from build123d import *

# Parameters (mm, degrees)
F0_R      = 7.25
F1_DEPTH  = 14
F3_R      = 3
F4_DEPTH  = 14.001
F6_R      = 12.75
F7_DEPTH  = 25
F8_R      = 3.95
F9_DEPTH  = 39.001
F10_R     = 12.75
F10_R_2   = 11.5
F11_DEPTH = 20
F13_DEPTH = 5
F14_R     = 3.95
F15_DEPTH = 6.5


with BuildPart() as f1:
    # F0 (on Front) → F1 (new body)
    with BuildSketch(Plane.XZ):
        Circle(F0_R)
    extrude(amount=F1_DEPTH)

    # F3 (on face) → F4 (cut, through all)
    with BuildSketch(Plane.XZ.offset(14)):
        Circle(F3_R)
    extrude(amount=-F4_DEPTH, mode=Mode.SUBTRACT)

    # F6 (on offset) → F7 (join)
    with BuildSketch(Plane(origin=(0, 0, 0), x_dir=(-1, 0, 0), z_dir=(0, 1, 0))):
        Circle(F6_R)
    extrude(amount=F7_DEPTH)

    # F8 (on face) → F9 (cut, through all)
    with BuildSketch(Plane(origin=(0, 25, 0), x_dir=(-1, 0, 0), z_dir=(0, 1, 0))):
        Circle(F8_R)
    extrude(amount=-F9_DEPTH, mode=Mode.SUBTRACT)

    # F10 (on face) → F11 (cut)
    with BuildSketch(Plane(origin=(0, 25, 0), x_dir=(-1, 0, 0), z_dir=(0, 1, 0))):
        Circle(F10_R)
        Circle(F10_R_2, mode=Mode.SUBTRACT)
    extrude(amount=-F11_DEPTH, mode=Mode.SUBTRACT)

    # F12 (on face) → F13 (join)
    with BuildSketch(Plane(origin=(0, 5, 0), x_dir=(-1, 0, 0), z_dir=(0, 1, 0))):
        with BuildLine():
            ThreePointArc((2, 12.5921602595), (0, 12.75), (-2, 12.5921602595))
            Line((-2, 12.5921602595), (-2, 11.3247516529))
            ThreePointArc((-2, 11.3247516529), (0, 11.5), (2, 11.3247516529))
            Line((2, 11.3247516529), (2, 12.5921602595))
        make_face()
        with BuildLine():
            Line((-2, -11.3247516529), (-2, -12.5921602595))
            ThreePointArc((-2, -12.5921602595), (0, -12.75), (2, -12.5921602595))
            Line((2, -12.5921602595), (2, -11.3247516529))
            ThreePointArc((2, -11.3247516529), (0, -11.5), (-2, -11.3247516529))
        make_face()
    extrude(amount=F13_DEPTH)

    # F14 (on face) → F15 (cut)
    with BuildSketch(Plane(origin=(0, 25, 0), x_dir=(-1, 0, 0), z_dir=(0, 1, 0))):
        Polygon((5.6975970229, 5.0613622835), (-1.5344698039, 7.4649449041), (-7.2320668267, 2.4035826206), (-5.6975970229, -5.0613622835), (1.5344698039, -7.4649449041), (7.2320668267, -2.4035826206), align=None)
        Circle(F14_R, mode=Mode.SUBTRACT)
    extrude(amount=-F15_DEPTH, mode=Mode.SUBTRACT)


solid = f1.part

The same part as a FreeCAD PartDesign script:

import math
import FreeCAD as App
import Part
import Sketcher

V = App.Vector


def add_polygon(sketch, points):
    """Adds a closed chain of lines whose ends are joined by coincident constraints."""
    first, n = sketch.GeometryCount, len(points)
    for a, b in zip(points, points[1:] + points[:1]):
        sketch.addGeometry(Part.LineSegment(App.Vector(*a, 0), App.Vector(*b, 0)), False)
    for i in range(n):
        sketch.addConstraint(Sketcher.Constraint("Coincident", first + i, 2, first + (i + 1) % n, 1))

doc = App.newDocument("Part")
body = doc.addObject("PartDesign::Body", "Body")

# Sketch on XZ plane
sketch1 = body.newObject("Sketcher::SketchObject", "Sketch")
sketch1.AttachmentSupport = (doc.getObject("XZ_Plane"), [""])
sketch1.MapMode = "FlatFace"
sketch1.addGeometry(Part.Circle(V(0, 0, 0), V(0, 0, 1), 7), False)
sketch1.addConstraint([
    Sketcher.Constraint("Coincident", 0, 3, -1, 1),
    Sketcher.Constraint("Diameter", 0, 14.5),
])
pad1 = body.newObject("PartDesign::Pad", "Pad")
pad1.Profile = sketch1
pad1.Length = 14

# Sketch on XZ plane
sketch2 = body.newObject("Sketcher::SketchObject", "Sketch001")
sketch2.AttachmentSupport = (doc.getObject("XZ_Plane"), [""])
sketch2.MapMode = "FlatFace"
sketch2.AttachmentOffset = App.Placement(V(0, 0, 14), App.Rotation())
sketch2.addGeometry(Part.Circle(V(0, 0, 0), V(0, 0, 1), 3), False)
sketch2.addConstraint([
    Sketcher.Constraint("Coincident", 0, 3, -1, 1),
    Sketcher.Constraint("Diameter", 0, 6.0),
])
pocket1 = body.newObject("PartDesign::Pocket", "Pocket")
pocket1.Profile = sketch2
pocket1.Type = "ThroughAll"

# Sketch on XZ plane
sketch3 = body.newObject("Sketcher::SketchObject", "Sketch002")
sketch3.AttachmentSupport = (doc.getObject("XZ_Plane"), [""])
sketch3.MapMode = "FlatFace"
sketch3.addGeometry(Part.Circle(V(0, 0, 0), V(0, 0, 1), 13), False)
sketch3.addConstraint([
    Sketcher.Constraint("Coincident", 0, 3, -1, 1),
    Sketcher.Constraint("Diameter", 0, 25.5),
])
pad2 = body.newObject("PartDesign::Pad", "Pad001")
pad2.Profile = sketch3
pad2.Length = 25
pad2.Reversed = True

# Sketch on XZ plane
sketch4 = body.newObject("Sketcher::SketchObject", "Sketch003")
sketch4.AttachmentSupport = (doc.getObject("XZ_Plane"), [""])
sketch4.MapMode = "FlatFace"
sketch4.AttachmentOffset = App.Placement(V(0, 0, -25), App.Rotation())
sketch4.addGeometry(Part.Circle(V(0, 0, 0), V(0, 0, 1), 4), False)
sketch4.addConstraint([
    Sketcher.Constraint("Coincident", 0, 3, -1, 1),
    Sketcher.Constraint("Diameter", 0, 7.9),
])
pocket2 = body.newObject("PartDesign::Pocket", "Pocket001")
pocket2.Profile = sketch4
pocket2.Type = "ThroughAll"
pocket2.Reversed = True

# Sketch on XZ plane
sketch5 = body.newObject("Sketcher::SketchObject", "Sketch004")
sketch5.AttachmentSupport = (doc.getObject("XZ_Plane"), [""])
sketch5.MapMode = "FlatFace"
sketch5.AttachmentOffset = App.Placement(V(0, 0, -25), App.Rotation())
sketch5.addGeometry([
    Part.Circle(V(0, 0, 0), V(0, 0, 1), 13),
    Part.Circle(V(0, 0, 0), V(0, 0, 1), 12),
], False)
sketch5.addConstraint([
    Sketcher.Constraint("Coincident", 0, 3, -1, 1),
    Sketcher.Constraint("Coincident", 1, 3, -1, 1),
    Sketcher.Constraint("Diameter", 1, 23.0),
    Sketcher.Constraint("Diameter", 0, 25.5),
])
pocket3 = body.newObject("PartDesign::Pocket", "Pocket002")
pocket3.Profile = sketch5
pocket3.Length = 20
pocket3.Reversed = True

# Sketch on XZ plane
sketch6 = body.newObject("Sketcher::SketchObject", "Sketch005")
sketch6.AttachmentSupport = (doc.getObject("XZ_Plane"), [""])
sketch6.MapMode = "FlatFace"
sketch6.AttachmentOffset = App.Placement(V(0, 0, -5), App.Rotation())
sketch6.addGeometry([
    Part.ArcOfCircle(Part.Circle(V(0, 0, 0), V(0, 0, 1), 12.8), math.radians(80.98), math.radians(99.02)),  # 0
    Part.LineSegment(V(2, 12.6, 0), V(2, 11.3, 0)),  # 1
    Part.ArcOfCircle(Part.Circle(V(0, 0, 0), V(0, 0, 1), 11.5), math.radians(80), math.radians(100)),  # 2
    Part.LineSegment(V(-2, 11.3, 0), V(-2, 12.6, 0)),  # 3
    Part.LineSegment(V(2, -11.3, 0), V(2, -12.6, 0)),  # 4
    Part.ArcOfCircle(Part.Circle(V(0, 0, 0), V(0, 0, 1), 12.8), math.radians(-99.02), math.radians(-80.98)),  # 5
    Part.LineSegment(V(-2, -12.6, 0), V(-2, -11.3, 0)),  # 6
    Part.ArcOfCircle(Part.Circle(V(0, 0, 0), V(0, 0, 1), 11.5), math.radians(-100), math.radians(-80)),  # 7
], False)
sketch6.addConstraint([
    Sketcher.Constraint("Coincident", 0, 1, 1, 1),
    Sketcher.Constraint("Coincident", 1, 2, 2, 1),
    Sketcher.Constraint("Coincident", 2, 2, 3, 1),
    Sketcher.Constraint("Coincident", 3, 2, 0, 2),
    Sketcher.Constraint("Coincident", 4, 2, 5, 2),
    Sketcher.Constraint("Coincident", 5, 1, 6, 1),
    Sketcher.Constraint("Coincident", 6, 2, 7, 1),
    Sketcher.Constraint("Coincident", 7, 2, 4, 1),
    Sketcher.Constraint("Vertical", 1),
    Sketcher.Constraint("Vertical", 3),
    Sketcher.Constraint("Vertical", 4),
    Sketcher.Constraint("Vertical", 6),
    Sketcher.Constraint("Coincident", 0, 3, -1, 1),
    Sketcher.Constraint("Coincident", 2, 3, -1, 1),
    Sketcher.Constraint("Coincident", 5, 3, -1, 1),
    Sketcher.Constraint("Coincident", 7, 3, -1, 1),
    Sketcher.Constraint("Equal", 0, 5),
    Sketcher.Constraint("Equal", 2, 7),
    Sketcher.Constraint("Horizontal", 1, 2, 2, 2),
    Sketcher.Constraint("Horizontal", 4, 2, 5, 1),
    Sketcher.Constraint("Vertical", 1, 2, 4, 2),
    Sketcher.Constraint("Radius", 2, 11.5),
    Sketcher.Constraint("Radius", 0, 12.75),
    Sketcher.Constraint("DistanceX", -1, 1, 0, 1, 2.0),
])
pad3 = body.newObject("PartDesign::Pad", "Pad002")
pad3.Profile = sketch6
pad3.Length = 5
pad3.Reversed = True

# Sketch on XZ plane
sketch7 = body.newObject("Sketcher::SketchObject", "Sketch006")
sketch7.AttachmentSupport = (doc.getObject("XZ_Plane"), [""])
sketch7.MapMode = "FlatFace"
sketch7.AttachmentOffset = App.Placement(V(0, 0, -25), App.Rotation())
add_polygon(sketch7, [(-5.7, 5.1), (1.5, 7.5), (7.2, 2.4), (5.7, -5.1), (-1.5, -7.5), (-7.2, -2.4)])  # lines 0-5
sketch7.addGeometry(Part.Circle(V(0, 0, 0), V(0, 0, 1), 4), False)  # 6
sketch7.addConstraint([
    Sketcher.Constraint("Coincident", 6, 3, -1, 1),
    Sketcher.Constraint("Symmetric", 0, 2, 3, 2, -1, 1),
    Sketcher.Constraint("Symmetric", 1, 2, 4, 2, -1, 1),
    Sketcher.Constraint("Symmetric", 2, 2, 5, 2, -1, 1),
    Sketcher.Constraint("Equal", 0, 1),
    Sketcher.Constraint("Equal", 1, 2),
    Sketcher.Constraint("Diameter", 6, 7.9),
    Sketcher.Constraint("DistanceX", -1, 1, 0, 2, 1.53447),
    Sketcher.Constraint("DistanceX", 2, 2, 1, 2, 1.53447),
    Sketcher.Constraint("DistanceY", 3, 2, 0, 2, 14.92989),
    Sketcher.Constraint("DistanceY", 2, 2, 4, 2, 2.65778),
])
pocket4 = body.newObject("PartDesign::Pocket", "Pocket003")
pocket4.Profile = sketch7
pocket4.Length = 6.5
pocket4.Reversed = True

doc.recompute()
